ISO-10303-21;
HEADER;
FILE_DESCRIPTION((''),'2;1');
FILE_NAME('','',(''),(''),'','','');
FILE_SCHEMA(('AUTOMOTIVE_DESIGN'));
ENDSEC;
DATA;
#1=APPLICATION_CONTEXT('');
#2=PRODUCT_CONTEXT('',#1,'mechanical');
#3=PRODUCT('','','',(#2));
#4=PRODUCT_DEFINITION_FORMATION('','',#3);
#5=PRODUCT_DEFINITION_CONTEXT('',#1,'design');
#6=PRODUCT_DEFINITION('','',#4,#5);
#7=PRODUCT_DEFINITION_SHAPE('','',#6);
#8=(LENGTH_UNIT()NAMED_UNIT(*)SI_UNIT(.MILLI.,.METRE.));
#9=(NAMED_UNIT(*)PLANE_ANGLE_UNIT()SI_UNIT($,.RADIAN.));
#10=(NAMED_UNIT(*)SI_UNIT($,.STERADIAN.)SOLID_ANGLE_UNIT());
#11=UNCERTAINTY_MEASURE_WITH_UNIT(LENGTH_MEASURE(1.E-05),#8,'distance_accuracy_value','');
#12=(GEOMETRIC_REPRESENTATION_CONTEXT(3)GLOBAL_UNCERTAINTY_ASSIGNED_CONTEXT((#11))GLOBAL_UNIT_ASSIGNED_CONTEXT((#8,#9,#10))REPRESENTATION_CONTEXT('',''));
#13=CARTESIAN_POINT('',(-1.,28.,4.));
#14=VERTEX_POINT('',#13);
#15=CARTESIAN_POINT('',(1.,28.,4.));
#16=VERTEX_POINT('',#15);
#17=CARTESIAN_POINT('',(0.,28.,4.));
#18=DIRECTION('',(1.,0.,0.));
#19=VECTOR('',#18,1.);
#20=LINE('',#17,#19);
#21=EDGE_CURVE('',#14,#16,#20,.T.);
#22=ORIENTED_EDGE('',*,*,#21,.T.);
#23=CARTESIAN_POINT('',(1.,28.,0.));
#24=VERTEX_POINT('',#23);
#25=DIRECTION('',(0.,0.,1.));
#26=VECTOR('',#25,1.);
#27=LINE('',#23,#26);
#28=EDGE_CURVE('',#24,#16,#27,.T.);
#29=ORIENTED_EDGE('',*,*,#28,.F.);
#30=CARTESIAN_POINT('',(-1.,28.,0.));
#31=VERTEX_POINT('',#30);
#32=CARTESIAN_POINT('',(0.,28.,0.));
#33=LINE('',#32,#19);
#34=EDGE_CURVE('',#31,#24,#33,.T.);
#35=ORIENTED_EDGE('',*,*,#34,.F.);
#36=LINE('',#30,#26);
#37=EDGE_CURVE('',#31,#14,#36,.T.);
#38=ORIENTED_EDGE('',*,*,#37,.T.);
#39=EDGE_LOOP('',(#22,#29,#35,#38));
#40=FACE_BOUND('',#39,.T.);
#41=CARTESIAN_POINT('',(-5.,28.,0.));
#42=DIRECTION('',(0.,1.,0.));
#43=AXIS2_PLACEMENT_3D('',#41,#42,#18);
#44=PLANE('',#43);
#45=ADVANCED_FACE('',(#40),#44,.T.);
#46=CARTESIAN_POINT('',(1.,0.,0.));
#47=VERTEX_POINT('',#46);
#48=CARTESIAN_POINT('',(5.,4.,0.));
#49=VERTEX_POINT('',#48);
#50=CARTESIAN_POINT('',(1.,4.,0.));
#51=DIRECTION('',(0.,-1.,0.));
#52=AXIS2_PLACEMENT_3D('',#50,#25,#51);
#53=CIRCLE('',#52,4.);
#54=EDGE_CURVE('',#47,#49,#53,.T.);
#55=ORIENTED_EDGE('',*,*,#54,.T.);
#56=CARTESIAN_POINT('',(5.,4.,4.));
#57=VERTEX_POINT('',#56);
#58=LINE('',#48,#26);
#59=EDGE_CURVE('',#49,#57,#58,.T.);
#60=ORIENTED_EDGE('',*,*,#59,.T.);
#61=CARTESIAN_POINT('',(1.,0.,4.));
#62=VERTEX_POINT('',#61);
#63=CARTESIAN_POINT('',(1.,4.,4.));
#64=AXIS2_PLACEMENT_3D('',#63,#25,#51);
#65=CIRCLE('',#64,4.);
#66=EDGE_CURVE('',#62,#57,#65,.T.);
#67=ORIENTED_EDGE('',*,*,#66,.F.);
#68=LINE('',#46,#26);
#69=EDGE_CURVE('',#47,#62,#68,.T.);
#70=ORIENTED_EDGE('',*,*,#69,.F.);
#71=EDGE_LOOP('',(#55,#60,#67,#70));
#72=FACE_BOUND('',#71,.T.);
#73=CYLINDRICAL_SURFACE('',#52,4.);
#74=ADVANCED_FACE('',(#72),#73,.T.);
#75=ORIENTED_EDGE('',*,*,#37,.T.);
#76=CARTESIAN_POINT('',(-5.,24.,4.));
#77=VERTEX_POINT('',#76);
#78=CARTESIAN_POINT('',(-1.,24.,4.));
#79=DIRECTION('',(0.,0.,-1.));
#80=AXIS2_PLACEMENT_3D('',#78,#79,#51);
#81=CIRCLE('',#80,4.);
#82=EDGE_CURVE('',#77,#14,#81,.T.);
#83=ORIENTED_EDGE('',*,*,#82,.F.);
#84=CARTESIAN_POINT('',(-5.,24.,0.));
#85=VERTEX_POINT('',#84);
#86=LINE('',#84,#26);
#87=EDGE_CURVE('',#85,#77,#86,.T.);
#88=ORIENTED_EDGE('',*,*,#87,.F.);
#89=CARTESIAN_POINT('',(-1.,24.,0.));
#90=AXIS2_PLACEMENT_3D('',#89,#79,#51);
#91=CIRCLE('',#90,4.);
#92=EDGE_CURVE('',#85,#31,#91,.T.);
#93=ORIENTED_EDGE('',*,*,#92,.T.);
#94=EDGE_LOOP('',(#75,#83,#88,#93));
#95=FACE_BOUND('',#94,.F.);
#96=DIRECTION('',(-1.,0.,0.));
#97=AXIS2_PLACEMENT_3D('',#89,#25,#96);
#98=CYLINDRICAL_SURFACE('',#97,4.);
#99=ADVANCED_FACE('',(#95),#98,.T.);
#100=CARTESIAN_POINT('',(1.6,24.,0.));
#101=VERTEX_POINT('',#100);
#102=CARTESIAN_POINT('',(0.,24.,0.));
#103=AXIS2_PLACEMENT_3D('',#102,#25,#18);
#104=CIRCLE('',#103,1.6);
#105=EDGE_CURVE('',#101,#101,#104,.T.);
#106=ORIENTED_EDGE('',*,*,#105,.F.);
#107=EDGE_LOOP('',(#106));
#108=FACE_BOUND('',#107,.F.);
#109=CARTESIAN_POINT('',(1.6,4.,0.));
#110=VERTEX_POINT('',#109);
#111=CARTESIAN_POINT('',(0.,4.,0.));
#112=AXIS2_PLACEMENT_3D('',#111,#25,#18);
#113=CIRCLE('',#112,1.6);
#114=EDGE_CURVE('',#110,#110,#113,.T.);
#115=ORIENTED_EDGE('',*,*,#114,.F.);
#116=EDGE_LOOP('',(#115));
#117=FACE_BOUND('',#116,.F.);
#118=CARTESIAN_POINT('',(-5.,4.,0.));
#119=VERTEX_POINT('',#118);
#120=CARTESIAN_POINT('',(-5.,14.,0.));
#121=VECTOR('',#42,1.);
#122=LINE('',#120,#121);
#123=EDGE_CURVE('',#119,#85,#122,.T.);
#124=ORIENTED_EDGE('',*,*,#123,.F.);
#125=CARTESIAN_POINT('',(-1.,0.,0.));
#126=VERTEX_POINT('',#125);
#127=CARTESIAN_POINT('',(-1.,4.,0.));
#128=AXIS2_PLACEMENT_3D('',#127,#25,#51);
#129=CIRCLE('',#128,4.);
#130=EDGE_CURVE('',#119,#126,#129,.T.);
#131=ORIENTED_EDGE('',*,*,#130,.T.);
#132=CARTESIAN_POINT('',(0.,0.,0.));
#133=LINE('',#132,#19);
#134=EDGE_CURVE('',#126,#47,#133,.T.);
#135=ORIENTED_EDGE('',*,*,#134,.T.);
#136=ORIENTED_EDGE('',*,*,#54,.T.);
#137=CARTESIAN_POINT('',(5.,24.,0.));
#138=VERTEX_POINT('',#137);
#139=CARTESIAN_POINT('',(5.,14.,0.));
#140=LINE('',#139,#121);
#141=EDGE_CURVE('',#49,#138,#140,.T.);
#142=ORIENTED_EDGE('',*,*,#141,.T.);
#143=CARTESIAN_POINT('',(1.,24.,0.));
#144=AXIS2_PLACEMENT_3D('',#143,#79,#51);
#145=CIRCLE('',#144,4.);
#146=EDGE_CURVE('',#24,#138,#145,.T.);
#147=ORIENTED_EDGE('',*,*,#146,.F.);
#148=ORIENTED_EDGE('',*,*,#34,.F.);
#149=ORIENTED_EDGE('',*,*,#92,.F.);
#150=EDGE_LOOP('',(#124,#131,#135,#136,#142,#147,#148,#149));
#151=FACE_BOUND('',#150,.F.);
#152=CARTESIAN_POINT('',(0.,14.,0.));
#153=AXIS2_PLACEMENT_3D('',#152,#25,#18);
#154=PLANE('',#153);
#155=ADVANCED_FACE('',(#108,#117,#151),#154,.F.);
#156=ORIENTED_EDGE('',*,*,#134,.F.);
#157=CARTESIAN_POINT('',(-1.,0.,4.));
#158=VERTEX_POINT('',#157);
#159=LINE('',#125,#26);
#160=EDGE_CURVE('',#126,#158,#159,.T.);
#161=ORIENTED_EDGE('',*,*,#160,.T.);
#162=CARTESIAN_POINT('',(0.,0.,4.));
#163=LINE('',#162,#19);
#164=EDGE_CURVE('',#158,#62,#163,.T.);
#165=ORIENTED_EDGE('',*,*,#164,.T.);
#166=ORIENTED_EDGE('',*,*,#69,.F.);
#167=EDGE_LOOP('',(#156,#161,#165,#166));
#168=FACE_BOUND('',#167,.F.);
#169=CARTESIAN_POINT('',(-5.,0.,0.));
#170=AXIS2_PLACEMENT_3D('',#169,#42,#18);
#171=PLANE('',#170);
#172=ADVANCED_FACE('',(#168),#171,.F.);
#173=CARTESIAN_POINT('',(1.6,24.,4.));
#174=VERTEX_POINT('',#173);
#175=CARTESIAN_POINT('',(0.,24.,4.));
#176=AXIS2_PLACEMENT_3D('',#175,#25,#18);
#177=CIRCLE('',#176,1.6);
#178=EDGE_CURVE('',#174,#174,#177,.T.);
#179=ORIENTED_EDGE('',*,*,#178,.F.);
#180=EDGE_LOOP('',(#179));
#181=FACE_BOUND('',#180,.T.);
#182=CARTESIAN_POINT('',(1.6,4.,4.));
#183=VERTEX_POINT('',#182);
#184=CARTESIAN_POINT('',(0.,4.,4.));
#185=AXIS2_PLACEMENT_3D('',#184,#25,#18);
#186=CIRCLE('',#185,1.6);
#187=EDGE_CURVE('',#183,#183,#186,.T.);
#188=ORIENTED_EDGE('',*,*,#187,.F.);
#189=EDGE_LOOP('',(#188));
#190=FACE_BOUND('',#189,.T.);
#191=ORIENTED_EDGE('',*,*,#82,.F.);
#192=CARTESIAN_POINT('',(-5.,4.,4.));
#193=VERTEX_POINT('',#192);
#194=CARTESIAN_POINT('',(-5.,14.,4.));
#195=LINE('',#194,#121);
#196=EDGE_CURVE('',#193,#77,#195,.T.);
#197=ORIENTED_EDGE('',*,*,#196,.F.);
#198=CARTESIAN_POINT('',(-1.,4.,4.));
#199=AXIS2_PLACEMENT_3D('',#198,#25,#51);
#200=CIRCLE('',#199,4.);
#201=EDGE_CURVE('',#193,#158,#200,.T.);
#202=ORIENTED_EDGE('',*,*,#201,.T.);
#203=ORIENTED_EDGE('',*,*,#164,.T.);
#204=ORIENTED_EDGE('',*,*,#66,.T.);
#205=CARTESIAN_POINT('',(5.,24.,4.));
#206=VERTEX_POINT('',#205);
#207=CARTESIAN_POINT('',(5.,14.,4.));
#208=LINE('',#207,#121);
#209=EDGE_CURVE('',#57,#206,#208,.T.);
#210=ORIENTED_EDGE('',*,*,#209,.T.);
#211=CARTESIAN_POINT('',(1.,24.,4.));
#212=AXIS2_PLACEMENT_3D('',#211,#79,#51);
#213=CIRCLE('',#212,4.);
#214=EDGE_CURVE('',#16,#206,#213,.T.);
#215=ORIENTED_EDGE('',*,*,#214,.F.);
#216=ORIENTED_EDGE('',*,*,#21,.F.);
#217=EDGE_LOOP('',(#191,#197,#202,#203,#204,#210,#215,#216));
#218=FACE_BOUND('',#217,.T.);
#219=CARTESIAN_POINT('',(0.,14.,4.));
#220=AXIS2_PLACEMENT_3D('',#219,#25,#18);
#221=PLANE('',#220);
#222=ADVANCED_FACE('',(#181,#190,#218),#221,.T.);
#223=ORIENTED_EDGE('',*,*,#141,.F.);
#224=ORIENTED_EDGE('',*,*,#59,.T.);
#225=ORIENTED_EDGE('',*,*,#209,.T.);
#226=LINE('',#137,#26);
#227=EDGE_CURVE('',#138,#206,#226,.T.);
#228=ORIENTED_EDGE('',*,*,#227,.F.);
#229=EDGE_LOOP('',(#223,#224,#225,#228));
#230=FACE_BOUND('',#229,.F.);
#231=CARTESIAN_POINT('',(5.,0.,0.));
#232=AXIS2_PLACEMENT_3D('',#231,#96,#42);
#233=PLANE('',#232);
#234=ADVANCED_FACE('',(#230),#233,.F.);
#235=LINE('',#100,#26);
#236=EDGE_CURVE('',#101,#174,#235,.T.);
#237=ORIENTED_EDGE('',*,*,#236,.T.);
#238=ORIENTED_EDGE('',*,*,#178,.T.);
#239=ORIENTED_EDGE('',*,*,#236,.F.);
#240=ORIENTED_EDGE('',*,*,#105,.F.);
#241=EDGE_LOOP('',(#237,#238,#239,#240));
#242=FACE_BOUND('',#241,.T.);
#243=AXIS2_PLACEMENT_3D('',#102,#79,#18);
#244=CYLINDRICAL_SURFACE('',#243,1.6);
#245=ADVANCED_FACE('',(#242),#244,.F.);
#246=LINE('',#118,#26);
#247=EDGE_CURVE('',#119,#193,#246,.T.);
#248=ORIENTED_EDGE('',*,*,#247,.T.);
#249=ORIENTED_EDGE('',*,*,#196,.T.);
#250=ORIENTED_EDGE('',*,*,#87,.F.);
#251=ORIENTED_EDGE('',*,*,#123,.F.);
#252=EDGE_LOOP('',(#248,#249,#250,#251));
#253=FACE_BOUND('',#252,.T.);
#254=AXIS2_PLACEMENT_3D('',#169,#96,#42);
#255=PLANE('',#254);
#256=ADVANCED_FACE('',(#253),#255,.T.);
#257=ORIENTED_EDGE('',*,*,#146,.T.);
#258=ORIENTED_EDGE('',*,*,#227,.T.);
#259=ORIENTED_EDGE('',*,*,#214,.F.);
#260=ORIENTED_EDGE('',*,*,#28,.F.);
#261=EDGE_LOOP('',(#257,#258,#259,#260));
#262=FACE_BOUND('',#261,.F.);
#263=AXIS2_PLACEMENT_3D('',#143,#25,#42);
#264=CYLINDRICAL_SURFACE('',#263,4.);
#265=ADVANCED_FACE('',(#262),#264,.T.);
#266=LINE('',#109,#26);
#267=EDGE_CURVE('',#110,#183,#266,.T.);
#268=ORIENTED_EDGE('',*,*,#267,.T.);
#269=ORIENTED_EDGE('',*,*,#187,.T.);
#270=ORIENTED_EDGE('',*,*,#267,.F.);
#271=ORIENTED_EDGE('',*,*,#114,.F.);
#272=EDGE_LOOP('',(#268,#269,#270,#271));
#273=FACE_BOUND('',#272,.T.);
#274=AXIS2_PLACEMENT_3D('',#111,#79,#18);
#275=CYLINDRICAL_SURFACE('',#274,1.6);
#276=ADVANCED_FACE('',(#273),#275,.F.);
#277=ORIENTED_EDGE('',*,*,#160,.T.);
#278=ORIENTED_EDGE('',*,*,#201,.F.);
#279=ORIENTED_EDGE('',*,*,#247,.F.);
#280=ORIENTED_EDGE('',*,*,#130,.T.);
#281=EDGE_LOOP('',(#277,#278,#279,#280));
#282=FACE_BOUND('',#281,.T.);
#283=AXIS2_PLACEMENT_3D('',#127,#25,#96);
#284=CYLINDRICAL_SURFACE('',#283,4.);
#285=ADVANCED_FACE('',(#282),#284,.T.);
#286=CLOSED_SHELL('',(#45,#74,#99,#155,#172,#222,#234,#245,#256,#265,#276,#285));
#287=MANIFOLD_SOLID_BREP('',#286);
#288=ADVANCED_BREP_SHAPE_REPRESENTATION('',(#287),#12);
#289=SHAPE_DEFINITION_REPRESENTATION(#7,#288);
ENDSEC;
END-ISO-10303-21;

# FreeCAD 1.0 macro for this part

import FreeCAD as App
import Part
import Sketcher
from FreeCAD import Vector
Q = App.Units.Quantity


def edges_at(feature, points):
    """Names of the edges that pass closest to the given points."""
    edges = feature.Shape.Edges
    near = lambda p: min(range(len(edges)), key=lambda i: edges[i].distToShape(Part.Vertex(*p))[0])
    return sorted({f"Edge{near(p) + 1}" for p in points})


def add_polygon(sketch, points):
    """Adds a closed chain of lines whose ends are joined by coincident constraints."""
    first, n = sketch.GeometryCount, len(points)
    for a, b in zip(points, points[1:] + points[:1]):
        sketch.addGeometry(Part.LineSegment(App.Vector(*a, 0), App.Vector(*b, 0)), False)
    for i in range(n):
        sketch.addConstraint(Sketcher.Constraint("Coincident", first + i, 2, first + (i + 1) % n, 1))

doc = App.newDocument("Part")
body = doc.addObject("PartDesign::Body", "Body")

# Sketch on XY plane
sketch1 = body.newObject("Sketcher::SketchObject", "Sketch")
sketch1.AttachmentSupport = (doc.getObject("XY_Plane"), [""])
sketch1.MapMode = "FlatFace"
add_polygon(sketch1, [(-5, 28), (-5, 0), (5, 0), (5, 28)])  # lines 0-3
sketch1.addGeometry(Part.Circle(Vector(0, 4, 0), Vector(0, 0, 1), 1.6), False)  # 4
sketch1.addGeometry(Part.Circle(Vector(0, 24, 0), Vector(0, 0, 1), 1.6), False)  # 5
sketch1.addConstraint(Sketcher.Constraint("Vertical", 0))
sketch1.addConstraint(Sketcher.Constraint("Horizontal", 1))
sketch1.addConstraint(Sketcher.Constraint("Vertical", 2))
sketch1.addConstraint(Sketcher.Constraint("Horizontal", 3))
sketch1.addConstraint(Sketcher.Constraint("Equal", 4, 5))
sketch1.addConstraint(Sketcher.Constraint("Symmetric", 0, 2, 1, 2, -1, 1))
sketch1.addConstraint(Sketcher.Constraint("PointOnObject", 4, 3, -2))
sketch1.addConstraint(Sketcher.Constraint("PointOnObject", 5, 3, -2))
sketch1.addConstraint(Sketcher.Constraint("Diameter", 4, Q("3.2 mm")))
sketch1.addConstraint(Sketcher.Constraint("DistanceX", 1, 1, 1, 2, Q("10 mm")))
sketch1.addConstraint(Sketcher.Constraint("DistanceY", 0, 2, 0, 1, Q("28 mm")))
sketch1.addConstraint(Sketcher.Constraint("DistanceY", -1, 1, 4, 3, Q("4 mm")))
sketch1.addConstraint(Sketcher.Constraint("DistanceY", -1, 1, 5, 3, Q("24 mm")))
pad1 = body.newObject("PartDesign::Pad", "Pad")
pad1.Profile = sketch1
pad1.Length = 4
doc.recompute()

fillet = body.newObject("PartDesign::Fillet", "Fillet")
fillet.Base = (pad1, edges_at(pad1, [
    (5, 28, 2),
    (-5, 28, 2),
    (-5, 0, 2),
    (5, 0, 2),
]))
fillet.Radius = 4

doc.recompute()
